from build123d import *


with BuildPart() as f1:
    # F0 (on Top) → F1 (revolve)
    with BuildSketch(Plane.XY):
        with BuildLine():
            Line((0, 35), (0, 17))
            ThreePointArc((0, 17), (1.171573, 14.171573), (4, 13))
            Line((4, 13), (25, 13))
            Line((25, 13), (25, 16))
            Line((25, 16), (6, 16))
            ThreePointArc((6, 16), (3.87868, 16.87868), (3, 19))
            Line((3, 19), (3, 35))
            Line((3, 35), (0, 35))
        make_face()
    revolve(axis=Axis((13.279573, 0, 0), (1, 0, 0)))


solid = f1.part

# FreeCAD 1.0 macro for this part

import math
import FreeCAD as App
import Part
import Sketcher

doc = App.newDocument("Part")
body = doc.addObject("PartDesign::Body", "Body")

# Sketch on XY plane
sketch1 = body.newObject("Sketcher::SketchObject", "Sketch")
sketch1.AttachmentSupport = (doc.getObject("XY_Plane"), [""])
sketch1.MapMode = "FlatFace"
sketch1.addGeometry([
    Part.LineSegment(App.Vector(0, 35, 0), App.Vector(0, 17, 0)),  # 0
    Part.ArcOfCircle(Part.Circle(App.Vector(4, 17, 0), App.Vector(0, 0, 1), 4), math.radians(-180), math.radians(-90)),  # 1
    Part.LineSegment(App.Vector(4, 13, 0), App.Vector(25, 13, 0)),  # 2
    Part.LineSegment(App.Vector(25, 13, 0), App.Vector(25, 16, 0)),  # 3
    Part.LineSegment(App.Vector(25, 16, 0), App.Vector(6, 16, 0)),  # 4
    Part.ArcOfCircle(Part.Circle(App.Vector(6, 19, 0), App.Vector(0, 0, 1), 3), math.radians(-180), math.radians(-90)),  # 5
    Part.LineSegment(App.Vector(3, 19, 0), App.Vector(3, 35, 0)),  # 6
    Part.LineSegment(App.Vector(3, 35, 0), App.Vector(0, 35, 0)),  # 7
], False)
sketch1.addConstraint([
    Sketcher.Constraint("Tangent", 0, 2, 1, 1),
    Sketcher.Constraint("Tangent", 1, 2, 2, 1),
    Sketcher.Constraint("Coincident", 2, 2, 3, 1),
    Sketcher.Constraint("Coincident", 3, 2, 4, 1),
    Sketcher.Constraint("Tangent", 4, 2, 5, 2),
    Sketcher.Constraint("Tangent", 5, 1, 6, 1),
    Sketcher.Constraint("Coincident", 6, 2, 7, 1),
    Sketcher.Constraint("Coincident", 7, 2, 0, 1),
    Sketcher.Constraint("Vertical", 0),
    Sketcher.Constraint("Horizontal", 2),
    Sketcher.Constraint("Vertical", 3),
    Sketcher.Constraint("Horizontal", 4),
    Sketcher.Constraint("Vertical", 6),
    Sketcher.Constraint("Horizontal", 7),
    Sketcher.Constraint("PointOnObject", 0, 2, -2),
    Sketcher.Constraint("Equal", 7, 3),
    Sketcher.Constraint("Radius", 1, 4.0),
    Sketcher.Constraint("Radius", 5, 3.000001),
    Sketcher.Constraint("DistanceX", 2, 1, 2, 2, 21.0),
    Sketcher.Constraint("DistanceX", 4, 2, 4, 1, 19.0),
    Sketcher.Constraint("DistanceY", 0, 2, 0, 1, 18.0),
    Sketcher.Constraint("DistanceY", -1, 1, 1, 3, 17.0),
])
revolution = body.newObject("PartDesign::Revolution", "Revolution")
revolution.Profile = sketch1
revolution.ReferenceAxis = (sketch1, ["H_Axis"])
revolution.Angle = 360

doc.recompute()
